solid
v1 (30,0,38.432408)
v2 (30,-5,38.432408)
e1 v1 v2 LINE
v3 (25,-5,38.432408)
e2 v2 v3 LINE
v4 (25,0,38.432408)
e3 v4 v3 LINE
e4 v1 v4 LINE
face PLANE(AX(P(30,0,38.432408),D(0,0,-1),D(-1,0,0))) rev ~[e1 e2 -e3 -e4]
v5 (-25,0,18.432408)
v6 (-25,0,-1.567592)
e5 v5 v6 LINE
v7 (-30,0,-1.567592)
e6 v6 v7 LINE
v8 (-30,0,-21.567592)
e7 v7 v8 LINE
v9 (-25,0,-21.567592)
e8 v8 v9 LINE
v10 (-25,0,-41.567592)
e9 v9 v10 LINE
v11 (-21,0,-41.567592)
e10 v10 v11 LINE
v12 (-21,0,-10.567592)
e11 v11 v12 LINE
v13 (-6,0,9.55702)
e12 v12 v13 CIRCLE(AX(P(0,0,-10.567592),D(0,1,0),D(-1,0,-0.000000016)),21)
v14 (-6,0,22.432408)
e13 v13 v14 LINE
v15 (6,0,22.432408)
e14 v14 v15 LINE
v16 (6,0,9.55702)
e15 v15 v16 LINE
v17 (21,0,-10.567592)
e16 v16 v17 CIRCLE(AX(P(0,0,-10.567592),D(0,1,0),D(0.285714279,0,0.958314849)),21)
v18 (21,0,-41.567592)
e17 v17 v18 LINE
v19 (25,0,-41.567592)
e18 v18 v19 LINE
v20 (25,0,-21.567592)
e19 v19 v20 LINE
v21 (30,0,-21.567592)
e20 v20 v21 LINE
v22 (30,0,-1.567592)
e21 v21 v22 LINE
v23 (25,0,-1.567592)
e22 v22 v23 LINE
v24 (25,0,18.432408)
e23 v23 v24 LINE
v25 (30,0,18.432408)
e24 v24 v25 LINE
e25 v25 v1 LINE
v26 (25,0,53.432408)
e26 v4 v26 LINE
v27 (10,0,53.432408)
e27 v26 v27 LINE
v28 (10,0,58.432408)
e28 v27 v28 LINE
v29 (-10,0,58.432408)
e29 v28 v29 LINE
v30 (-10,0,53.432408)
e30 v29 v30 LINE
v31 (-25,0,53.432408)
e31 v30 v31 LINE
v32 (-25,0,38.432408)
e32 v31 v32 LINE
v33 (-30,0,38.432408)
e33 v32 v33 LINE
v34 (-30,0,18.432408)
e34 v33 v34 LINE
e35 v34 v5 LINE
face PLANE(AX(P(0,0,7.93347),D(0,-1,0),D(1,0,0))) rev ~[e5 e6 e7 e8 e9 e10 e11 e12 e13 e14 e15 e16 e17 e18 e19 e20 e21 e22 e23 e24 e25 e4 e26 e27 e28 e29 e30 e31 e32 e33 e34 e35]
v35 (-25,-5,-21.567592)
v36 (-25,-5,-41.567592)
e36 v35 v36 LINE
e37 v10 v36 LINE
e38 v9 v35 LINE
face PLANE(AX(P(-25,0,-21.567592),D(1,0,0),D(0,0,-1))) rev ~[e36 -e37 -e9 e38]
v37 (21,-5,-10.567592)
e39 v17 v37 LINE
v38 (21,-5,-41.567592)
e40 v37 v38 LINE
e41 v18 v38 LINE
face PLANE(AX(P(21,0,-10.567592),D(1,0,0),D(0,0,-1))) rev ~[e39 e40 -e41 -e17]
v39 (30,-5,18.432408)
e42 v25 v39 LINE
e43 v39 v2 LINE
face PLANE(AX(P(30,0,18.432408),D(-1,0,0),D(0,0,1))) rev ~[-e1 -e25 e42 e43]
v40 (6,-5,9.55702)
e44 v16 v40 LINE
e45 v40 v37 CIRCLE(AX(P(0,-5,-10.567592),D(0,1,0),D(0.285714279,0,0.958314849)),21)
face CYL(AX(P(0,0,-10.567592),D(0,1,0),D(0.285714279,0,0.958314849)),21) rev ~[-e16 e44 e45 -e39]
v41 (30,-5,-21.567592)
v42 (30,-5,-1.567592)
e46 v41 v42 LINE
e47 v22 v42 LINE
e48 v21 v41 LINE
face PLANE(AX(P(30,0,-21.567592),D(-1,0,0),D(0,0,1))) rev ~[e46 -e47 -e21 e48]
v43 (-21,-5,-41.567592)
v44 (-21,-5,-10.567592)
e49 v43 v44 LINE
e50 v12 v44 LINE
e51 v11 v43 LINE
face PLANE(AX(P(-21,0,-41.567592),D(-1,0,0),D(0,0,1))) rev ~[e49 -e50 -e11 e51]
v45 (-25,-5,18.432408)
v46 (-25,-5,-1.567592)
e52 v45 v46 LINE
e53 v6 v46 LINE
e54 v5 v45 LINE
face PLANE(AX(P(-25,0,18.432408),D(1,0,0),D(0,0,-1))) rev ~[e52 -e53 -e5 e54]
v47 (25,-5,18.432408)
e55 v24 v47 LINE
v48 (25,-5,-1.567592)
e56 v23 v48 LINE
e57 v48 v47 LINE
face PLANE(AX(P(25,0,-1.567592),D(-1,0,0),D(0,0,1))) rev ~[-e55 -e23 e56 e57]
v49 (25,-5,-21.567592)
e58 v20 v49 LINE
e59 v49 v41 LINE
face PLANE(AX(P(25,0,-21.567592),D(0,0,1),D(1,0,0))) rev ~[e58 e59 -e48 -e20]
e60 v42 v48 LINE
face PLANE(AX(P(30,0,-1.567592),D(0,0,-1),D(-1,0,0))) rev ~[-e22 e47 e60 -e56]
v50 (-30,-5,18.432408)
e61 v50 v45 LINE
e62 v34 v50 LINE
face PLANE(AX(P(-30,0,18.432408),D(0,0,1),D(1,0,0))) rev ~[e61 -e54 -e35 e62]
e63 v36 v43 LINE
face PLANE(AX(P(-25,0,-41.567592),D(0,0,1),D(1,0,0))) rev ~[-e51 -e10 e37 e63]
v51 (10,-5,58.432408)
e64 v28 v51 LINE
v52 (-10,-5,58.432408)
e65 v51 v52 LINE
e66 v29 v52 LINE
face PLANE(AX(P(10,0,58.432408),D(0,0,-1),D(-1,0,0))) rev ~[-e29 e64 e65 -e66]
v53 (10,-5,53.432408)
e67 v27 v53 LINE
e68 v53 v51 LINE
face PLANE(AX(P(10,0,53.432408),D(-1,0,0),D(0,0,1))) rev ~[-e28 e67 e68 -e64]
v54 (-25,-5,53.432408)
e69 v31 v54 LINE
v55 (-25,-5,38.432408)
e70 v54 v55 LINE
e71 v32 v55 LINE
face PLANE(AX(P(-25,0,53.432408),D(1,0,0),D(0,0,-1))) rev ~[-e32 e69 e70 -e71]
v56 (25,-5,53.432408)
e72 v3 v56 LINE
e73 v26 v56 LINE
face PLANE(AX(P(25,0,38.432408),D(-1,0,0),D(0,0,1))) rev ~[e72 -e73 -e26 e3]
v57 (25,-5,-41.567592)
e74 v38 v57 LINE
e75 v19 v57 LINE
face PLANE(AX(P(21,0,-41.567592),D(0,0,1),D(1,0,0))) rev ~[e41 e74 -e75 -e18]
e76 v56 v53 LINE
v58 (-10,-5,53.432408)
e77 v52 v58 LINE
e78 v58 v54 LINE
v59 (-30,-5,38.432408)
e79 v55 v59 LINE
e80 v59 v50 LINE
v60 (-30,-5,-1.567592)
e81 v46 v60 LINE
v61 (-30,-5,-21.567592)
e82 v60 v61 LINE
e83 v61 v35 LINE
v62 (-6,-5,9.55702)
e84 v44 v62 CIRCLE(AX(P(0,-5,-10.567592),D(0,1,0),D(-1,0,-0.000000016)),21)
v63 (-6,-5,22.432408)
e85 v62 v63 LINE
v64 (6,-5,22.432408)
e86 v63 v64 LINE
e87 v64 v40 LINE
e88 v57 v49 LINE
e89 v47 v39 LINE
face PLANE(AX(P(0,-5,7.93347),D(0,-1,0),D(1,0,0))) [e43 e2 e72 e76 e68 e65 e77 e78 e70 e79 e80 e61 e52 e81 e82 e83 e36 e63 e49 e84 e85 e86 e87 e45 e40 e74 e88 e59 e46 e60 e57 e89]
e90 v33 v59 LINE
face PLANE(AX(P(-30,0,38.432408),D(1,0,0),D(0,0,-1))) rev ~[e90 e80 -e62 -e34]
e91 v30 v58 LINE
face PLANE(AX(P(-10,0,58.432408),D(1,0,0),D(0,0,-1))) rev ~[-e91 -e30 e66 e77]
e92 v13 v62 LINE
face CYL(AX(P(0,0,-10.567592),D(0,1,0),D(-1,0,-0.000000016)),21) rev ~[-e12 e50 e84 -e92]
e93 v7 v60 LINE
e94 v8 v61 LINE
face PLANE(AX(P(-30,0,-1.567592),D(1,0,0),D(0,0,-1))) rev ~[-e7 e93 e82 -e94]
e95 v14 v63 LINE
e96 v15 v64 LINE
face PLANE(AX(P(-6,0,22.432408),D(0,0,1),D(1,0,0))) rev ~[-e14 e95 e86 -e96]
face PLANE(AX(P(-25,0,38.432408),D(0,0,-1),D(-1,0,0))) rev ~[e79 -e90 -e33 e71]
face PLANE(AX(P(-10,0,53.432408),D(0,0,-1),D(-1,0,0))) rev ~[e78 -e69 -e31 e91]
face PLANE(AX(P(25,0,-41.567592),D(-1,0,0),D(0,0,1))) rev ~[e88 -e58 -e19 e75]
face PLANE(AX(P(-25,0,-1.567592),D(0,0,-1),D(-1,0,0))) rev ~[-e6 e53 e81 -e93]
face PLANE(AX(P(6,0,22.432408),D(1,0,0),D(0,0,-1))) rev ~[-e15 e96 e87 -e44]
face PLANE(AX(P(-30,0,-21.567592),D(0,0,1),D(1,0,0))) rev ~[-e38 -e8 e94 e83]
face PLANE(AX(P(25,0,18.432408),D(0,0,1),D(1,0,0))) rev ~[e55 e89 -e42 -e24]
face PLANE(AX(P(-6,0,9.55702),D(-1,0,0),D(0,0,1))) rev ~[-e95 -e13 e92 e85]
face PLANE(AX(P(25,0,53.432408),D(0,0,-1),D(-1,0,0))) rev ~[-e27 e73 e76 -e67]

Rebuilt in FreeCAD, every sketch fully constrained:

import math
import FreeCAD as App
import Part
import Sketcher

V = App.Vector
Q = App.Units.Quantity

doc = App.newDocument("Part")
body = doc.addObject("PartDesign::Body", "Body")

sketch1 = body.newObject("Sketcher::SketchObject", "Sketch")
sketch1.AttachmentSupport = (doc.getObject("XZ_Plane"), [""])
sketch1.MapMode = "FlatFace"
sketch1.addGeometry([
    Part.LineSegment(V(25, 38.432408, 0), V(25, 53.432408, 0)),
    Part.LineSegment(V(25, 53.432408, 0), V(10, 53.432408, 0)),
    Part.LineSegment(V(10, 53.432408, 0), V(10, 58.432408, 0)),
    Part.LineSegment(V(10, 58.432408, 0), V(-10, 58.432408, 0)),
    Part.LineSegment(V(-10, 58.432408, 0), V(-10, 53.432408, 0)),
    Part.LineSegment(V(-10, 53.432408, 0), V(-25, 53.432408, 0)),
    Part.LineSegment(V(-25, 53.432408, 0), V(-25, 38.432408, 0)),
    Part.LineSegment(V(-25, 38.432408, 0), V(-30, 38.432408, 0)),
    Part.LineSegment(V(-30, 38.432408, 0), V(-30, 18.432408, 0)),
    Part.LineSegment(V(-30, 18.432408, 0), V(-25, 18.432408, 0)),
    Part.LineSegment(V(-25, 18.432408, 0), V(-25, -1.567592, 0)),
    Part.LineSegment(V(-25, -1.567592, 0), V(-30, -1.567592, 0)),
    Part.LineSegment(V(-30, -1.567592, 0), V(-30, -21.567592, 0)),
    Part.LineSegment(V(-30, -21.567592, 0), V(-25, -21.567592, 0)),
    Part.LineSegment(V(-25, -21.567592, 0), V(-25, -41.567592, 0)),
    Part.LineSegment(V(-25, -41.567592, 0), V(-21, -41.567592, 0)),
    Part.LineSegment(V(-21, -41.567592, 0), V(-21, -10.567592, 0)),
    Part.ArcOfCircle(Part.Circle(V(0, -10.567592, 0), V(0, 0, 1), 21), math.radians(106.601549), math.radians(180.000001)),
    Part.LineSegment(V(-6, 9.55702, 0), V(-6, 22.432408, 0)),
    Part.LineSegment(V(-6, 22.432408, 0), V(6, 22.432408, 0)),
    Part.LineSegment(V(6, 22.432408, 0), V(6, 9.55702, 0)),
    Part.ArcOfCircle(Part.Circle(V(0, -10.567592, 0), V(0, 0, 1), 21), math.radians(-0.000001), math.radians(73.398451)),
    Part.LineSegment(V(21, -10.567592, 0), V(21, -41.567592, 0)),
    Part.LineSegment(V(21, -41.567592, 0), V(25, -41.567592, 0)),
    Part.LineSegment(V(25, -41.567592, 0), V(25, -21.567592, 0)),
    Part.LineSegment(V(25, -21.567592, 0), V(30, -21.567592, 0)),
    Part.LineSegment(V(30, -21.567592, 0), V(30, -1.567592, 0)),
    Part.LineSegment(V(30, -1.567592, 0), V(25, -1.567592, 0)),
    Part.LineSegment(V(25, -1.567592, 0), V(25, 18.432408, 0)),
    Part.LineSegment(V(25, 18.432408, 0), V(30, 18.432408, 0)),
    Part.LineSegment(V(30, 18.432408, 0), V(30, 38.432408, 0)),
    Part.LineSegment(V(30, 38.432408, 0), V(25, 38.432408, 0)),
], False)
sketch1.addConstraint([
    Sketcher.Constraint("Coincident", 0, 2, 1, 1),
    Sketcher.Constraint("Coincident", 1, 2, 2, 1),
    Sketcher.Constraint("Coincident", 2, 2, 3, 1),
    Sketcher.Constraint("Coincident", 3, 2, 4, 1),
    Sketcher.Constraint("Coincident", 4, 2, 5, 1),
    Sketcher.Constraint("Coincident", 5, 2, 6, 1),
    Sketcher.Constraint("Coincident", 6, 2, 7, 1),
    Sketcher.Constraint("Coincident", 7, 2, 8, 1),
    Sketcher.Constraint("Coincident", 8, 2, 9, 1),
    Sketcher.Constraint("Coincident", 9, 2, 10, 1),
    Sketcher.Constraint("Coincident", 10, 2, 11, 1),
    Sketcher.Constraint("Coincident", 11, 2, 12, 1),
    Sketcher.Constraint("Coincident", 12, 2, 13, 1),
    Sketcher.Constraint("Coincident", 13, 2, 14, 1),
    Sketcher.Constraint("Coincident", 14, 2, 15, 1),
    Sketcher.Constraint("Coincident", 15, 2, 16, 1),
    Sketcher.Constraint("Tangent", 16, 2, 17, 2),
    Sketcher.Constraint("Coincident", 17, 1, 18, 1),
    Sketcher.Constraint("Coincident", 18, 2, 19, 1),
    Sketcher.Constraint("Coincident", 19, 2, 20, 1),
    Sketcher.Constraint("Coincident", 20, 2, 21, 2),
    Sketcher.Constraint("Tangent", 21, 1, 22, 1),
    Sketcher.Constraint("Coincident", 22, 2, 23, 1),
    Sketcher.Constraint("Coincident", 23, 2, 24, 1),
    Sketcher.Constraint("Coincident", 24, 2, 25, 1),
    Sketcher.Constraint("Coincident", 25, 2, 26, 1),
    Sketcher.Constraint("Coincident", 26, 2, 27, 1),
    Sketcher.Constraint("Coincident", 27, 2, 28, 1),
    Sketcher.Constraint("Coincident", 28, 2, 29, 1),
    Sketcher.Constraint("Coincident", 29, 2, 30, 1),
    Sketcher.Constraint("Coincident", 30, 2, 31, 1),
    Sketcher.Constraint("Coincident", 31, 2, 0, 1),
    Sketcher.Constraint("Vertical", 0),
    Sketcher.Constraint("Horizontal", 1),
    Sketcher.Constraint("Vertical", 2),
    Sketcher.Constraint("Horizontal", 3),
    Sketcher.Constraint("Vertical", 4),
    Sketcher.Constraint("Horizontal", 5),
    Sketcher.Constraint("Vertical", 6),
    Sketcher.Constraint("Horizontal", 7),
    Sketcher.Constraint("Vertical", 8),
    Sketcher.Constraint("Horizontal", 9),
    Sketcher.Constraint("Vertical", 10),
    Sketcher.Constraint("Horizontal", 11),
    Sketcher.Constraint("Vertical", 12),
    Sketcher.Constraint("Horizontal", 13),
    Sketcher.Constraint("Vertical", 14),
    Sketcher.Constraint("Horizontal", 15),
    Sketcher.Constraint("Vertical", 16),
    Sketcher.Constraint("Vertical", 18),
    Sketcher.Constraint("Horizontal", 19),
    Sketcher.Constraint("Vertical", 20),
    Sketcher.Constraint("Vertical", 22),
    Sketcher.Constraint("Horizontal", 23),
    Sketcher.Constraint("Vertical", 24),
    Sketcher.Constraint("Horizontal", 25),
    Sketcher.Constraint("Vertical", 26),
    Sketcher.Constraint("Horizontal", 27),
    Sketcher.Constraint("Vertical", 28),
    Sketcher.Constraint("Horizontal", 29),
    Sketcher.Constraint("Vertical", 30),
    Sketcher.Constraint("Horizontal", 31),
    Sketcher.Constraint("Coincident", 21, 3, 17, 3),
    Sketcher.Constraint("Equal", 17, 21),
    Sketcher.Constraint("Symmetric", 1, 2, 4, 2, -2),
    Sketcher.Constraint("Symmetric", 17, 1, 20, 2, -2),
    Sketcher.Constraint("Symmetric", 14, 2, 23, 2, -2),
    Sketcher.Constraint("Symmetric", 12, 2, 25, 2, -2),
    Sketcher.Constraint("Symmetric", 10, 2, 27, 2, -2),
    Sketcher.Constraint("Symmetric", 8, 2, 29, 2, -2),
    Sketcher.Constraint("Symmetric", 6, 2, 31, 2, -2),
    Sketcher.Constraint("Vertical", 6, 2, 9, 2),
    Sketcher.Constraint("Vertical", 8, 2, 11, 2),
    Sketcher.Constraint("Vertical", 10, 2, 13, 2),
    Sketcher.Constraint("Equal", 5, 0),
    Sketcher.Constraint("Equal", 31, 2),
    Sketcher.Constraint("Equal", 3, 8),
    Sketcher.Constraint("Equal", 8, 10),
    Sketcher.Constraint("Equal", 10, 12),
    Sketcher.Constraint("Equal", 12, 14),
    Sketcher.Constraint("Radius", 17, Q("21 mm")),
    Sketcher.Constraint("DistanceX", 1, 2, 1, 1, Q("15 mm")),
    Sketcher.Constraint("DistanceX", 3, 2, 3, 1, Q("20 mm")),
    Sketcher.Constraint("DistanceX", 7, 2, 7, 1, Q("5 mm")),
    Sketcher.Constraint("DistanceX", 19, 1, 19, 2, Q("12 mm")),
    Sketcher.Constraint("DistanceY", 16, 1, 16, 2, Q("31 mm")),
    Sketcher.Constraint("DistanceY", 9, 2, 18, 2, Q("4 mm")),
    Sketcher.Constraint("DistanceY", 17, 3, -1, 1, Q("10.567592 mm")),
])
pad1 = body.newObject("PartDesign::Pad", "Pad")
pad1.Profile = sketch1
pad1.Length = 5

doc.recompute()
